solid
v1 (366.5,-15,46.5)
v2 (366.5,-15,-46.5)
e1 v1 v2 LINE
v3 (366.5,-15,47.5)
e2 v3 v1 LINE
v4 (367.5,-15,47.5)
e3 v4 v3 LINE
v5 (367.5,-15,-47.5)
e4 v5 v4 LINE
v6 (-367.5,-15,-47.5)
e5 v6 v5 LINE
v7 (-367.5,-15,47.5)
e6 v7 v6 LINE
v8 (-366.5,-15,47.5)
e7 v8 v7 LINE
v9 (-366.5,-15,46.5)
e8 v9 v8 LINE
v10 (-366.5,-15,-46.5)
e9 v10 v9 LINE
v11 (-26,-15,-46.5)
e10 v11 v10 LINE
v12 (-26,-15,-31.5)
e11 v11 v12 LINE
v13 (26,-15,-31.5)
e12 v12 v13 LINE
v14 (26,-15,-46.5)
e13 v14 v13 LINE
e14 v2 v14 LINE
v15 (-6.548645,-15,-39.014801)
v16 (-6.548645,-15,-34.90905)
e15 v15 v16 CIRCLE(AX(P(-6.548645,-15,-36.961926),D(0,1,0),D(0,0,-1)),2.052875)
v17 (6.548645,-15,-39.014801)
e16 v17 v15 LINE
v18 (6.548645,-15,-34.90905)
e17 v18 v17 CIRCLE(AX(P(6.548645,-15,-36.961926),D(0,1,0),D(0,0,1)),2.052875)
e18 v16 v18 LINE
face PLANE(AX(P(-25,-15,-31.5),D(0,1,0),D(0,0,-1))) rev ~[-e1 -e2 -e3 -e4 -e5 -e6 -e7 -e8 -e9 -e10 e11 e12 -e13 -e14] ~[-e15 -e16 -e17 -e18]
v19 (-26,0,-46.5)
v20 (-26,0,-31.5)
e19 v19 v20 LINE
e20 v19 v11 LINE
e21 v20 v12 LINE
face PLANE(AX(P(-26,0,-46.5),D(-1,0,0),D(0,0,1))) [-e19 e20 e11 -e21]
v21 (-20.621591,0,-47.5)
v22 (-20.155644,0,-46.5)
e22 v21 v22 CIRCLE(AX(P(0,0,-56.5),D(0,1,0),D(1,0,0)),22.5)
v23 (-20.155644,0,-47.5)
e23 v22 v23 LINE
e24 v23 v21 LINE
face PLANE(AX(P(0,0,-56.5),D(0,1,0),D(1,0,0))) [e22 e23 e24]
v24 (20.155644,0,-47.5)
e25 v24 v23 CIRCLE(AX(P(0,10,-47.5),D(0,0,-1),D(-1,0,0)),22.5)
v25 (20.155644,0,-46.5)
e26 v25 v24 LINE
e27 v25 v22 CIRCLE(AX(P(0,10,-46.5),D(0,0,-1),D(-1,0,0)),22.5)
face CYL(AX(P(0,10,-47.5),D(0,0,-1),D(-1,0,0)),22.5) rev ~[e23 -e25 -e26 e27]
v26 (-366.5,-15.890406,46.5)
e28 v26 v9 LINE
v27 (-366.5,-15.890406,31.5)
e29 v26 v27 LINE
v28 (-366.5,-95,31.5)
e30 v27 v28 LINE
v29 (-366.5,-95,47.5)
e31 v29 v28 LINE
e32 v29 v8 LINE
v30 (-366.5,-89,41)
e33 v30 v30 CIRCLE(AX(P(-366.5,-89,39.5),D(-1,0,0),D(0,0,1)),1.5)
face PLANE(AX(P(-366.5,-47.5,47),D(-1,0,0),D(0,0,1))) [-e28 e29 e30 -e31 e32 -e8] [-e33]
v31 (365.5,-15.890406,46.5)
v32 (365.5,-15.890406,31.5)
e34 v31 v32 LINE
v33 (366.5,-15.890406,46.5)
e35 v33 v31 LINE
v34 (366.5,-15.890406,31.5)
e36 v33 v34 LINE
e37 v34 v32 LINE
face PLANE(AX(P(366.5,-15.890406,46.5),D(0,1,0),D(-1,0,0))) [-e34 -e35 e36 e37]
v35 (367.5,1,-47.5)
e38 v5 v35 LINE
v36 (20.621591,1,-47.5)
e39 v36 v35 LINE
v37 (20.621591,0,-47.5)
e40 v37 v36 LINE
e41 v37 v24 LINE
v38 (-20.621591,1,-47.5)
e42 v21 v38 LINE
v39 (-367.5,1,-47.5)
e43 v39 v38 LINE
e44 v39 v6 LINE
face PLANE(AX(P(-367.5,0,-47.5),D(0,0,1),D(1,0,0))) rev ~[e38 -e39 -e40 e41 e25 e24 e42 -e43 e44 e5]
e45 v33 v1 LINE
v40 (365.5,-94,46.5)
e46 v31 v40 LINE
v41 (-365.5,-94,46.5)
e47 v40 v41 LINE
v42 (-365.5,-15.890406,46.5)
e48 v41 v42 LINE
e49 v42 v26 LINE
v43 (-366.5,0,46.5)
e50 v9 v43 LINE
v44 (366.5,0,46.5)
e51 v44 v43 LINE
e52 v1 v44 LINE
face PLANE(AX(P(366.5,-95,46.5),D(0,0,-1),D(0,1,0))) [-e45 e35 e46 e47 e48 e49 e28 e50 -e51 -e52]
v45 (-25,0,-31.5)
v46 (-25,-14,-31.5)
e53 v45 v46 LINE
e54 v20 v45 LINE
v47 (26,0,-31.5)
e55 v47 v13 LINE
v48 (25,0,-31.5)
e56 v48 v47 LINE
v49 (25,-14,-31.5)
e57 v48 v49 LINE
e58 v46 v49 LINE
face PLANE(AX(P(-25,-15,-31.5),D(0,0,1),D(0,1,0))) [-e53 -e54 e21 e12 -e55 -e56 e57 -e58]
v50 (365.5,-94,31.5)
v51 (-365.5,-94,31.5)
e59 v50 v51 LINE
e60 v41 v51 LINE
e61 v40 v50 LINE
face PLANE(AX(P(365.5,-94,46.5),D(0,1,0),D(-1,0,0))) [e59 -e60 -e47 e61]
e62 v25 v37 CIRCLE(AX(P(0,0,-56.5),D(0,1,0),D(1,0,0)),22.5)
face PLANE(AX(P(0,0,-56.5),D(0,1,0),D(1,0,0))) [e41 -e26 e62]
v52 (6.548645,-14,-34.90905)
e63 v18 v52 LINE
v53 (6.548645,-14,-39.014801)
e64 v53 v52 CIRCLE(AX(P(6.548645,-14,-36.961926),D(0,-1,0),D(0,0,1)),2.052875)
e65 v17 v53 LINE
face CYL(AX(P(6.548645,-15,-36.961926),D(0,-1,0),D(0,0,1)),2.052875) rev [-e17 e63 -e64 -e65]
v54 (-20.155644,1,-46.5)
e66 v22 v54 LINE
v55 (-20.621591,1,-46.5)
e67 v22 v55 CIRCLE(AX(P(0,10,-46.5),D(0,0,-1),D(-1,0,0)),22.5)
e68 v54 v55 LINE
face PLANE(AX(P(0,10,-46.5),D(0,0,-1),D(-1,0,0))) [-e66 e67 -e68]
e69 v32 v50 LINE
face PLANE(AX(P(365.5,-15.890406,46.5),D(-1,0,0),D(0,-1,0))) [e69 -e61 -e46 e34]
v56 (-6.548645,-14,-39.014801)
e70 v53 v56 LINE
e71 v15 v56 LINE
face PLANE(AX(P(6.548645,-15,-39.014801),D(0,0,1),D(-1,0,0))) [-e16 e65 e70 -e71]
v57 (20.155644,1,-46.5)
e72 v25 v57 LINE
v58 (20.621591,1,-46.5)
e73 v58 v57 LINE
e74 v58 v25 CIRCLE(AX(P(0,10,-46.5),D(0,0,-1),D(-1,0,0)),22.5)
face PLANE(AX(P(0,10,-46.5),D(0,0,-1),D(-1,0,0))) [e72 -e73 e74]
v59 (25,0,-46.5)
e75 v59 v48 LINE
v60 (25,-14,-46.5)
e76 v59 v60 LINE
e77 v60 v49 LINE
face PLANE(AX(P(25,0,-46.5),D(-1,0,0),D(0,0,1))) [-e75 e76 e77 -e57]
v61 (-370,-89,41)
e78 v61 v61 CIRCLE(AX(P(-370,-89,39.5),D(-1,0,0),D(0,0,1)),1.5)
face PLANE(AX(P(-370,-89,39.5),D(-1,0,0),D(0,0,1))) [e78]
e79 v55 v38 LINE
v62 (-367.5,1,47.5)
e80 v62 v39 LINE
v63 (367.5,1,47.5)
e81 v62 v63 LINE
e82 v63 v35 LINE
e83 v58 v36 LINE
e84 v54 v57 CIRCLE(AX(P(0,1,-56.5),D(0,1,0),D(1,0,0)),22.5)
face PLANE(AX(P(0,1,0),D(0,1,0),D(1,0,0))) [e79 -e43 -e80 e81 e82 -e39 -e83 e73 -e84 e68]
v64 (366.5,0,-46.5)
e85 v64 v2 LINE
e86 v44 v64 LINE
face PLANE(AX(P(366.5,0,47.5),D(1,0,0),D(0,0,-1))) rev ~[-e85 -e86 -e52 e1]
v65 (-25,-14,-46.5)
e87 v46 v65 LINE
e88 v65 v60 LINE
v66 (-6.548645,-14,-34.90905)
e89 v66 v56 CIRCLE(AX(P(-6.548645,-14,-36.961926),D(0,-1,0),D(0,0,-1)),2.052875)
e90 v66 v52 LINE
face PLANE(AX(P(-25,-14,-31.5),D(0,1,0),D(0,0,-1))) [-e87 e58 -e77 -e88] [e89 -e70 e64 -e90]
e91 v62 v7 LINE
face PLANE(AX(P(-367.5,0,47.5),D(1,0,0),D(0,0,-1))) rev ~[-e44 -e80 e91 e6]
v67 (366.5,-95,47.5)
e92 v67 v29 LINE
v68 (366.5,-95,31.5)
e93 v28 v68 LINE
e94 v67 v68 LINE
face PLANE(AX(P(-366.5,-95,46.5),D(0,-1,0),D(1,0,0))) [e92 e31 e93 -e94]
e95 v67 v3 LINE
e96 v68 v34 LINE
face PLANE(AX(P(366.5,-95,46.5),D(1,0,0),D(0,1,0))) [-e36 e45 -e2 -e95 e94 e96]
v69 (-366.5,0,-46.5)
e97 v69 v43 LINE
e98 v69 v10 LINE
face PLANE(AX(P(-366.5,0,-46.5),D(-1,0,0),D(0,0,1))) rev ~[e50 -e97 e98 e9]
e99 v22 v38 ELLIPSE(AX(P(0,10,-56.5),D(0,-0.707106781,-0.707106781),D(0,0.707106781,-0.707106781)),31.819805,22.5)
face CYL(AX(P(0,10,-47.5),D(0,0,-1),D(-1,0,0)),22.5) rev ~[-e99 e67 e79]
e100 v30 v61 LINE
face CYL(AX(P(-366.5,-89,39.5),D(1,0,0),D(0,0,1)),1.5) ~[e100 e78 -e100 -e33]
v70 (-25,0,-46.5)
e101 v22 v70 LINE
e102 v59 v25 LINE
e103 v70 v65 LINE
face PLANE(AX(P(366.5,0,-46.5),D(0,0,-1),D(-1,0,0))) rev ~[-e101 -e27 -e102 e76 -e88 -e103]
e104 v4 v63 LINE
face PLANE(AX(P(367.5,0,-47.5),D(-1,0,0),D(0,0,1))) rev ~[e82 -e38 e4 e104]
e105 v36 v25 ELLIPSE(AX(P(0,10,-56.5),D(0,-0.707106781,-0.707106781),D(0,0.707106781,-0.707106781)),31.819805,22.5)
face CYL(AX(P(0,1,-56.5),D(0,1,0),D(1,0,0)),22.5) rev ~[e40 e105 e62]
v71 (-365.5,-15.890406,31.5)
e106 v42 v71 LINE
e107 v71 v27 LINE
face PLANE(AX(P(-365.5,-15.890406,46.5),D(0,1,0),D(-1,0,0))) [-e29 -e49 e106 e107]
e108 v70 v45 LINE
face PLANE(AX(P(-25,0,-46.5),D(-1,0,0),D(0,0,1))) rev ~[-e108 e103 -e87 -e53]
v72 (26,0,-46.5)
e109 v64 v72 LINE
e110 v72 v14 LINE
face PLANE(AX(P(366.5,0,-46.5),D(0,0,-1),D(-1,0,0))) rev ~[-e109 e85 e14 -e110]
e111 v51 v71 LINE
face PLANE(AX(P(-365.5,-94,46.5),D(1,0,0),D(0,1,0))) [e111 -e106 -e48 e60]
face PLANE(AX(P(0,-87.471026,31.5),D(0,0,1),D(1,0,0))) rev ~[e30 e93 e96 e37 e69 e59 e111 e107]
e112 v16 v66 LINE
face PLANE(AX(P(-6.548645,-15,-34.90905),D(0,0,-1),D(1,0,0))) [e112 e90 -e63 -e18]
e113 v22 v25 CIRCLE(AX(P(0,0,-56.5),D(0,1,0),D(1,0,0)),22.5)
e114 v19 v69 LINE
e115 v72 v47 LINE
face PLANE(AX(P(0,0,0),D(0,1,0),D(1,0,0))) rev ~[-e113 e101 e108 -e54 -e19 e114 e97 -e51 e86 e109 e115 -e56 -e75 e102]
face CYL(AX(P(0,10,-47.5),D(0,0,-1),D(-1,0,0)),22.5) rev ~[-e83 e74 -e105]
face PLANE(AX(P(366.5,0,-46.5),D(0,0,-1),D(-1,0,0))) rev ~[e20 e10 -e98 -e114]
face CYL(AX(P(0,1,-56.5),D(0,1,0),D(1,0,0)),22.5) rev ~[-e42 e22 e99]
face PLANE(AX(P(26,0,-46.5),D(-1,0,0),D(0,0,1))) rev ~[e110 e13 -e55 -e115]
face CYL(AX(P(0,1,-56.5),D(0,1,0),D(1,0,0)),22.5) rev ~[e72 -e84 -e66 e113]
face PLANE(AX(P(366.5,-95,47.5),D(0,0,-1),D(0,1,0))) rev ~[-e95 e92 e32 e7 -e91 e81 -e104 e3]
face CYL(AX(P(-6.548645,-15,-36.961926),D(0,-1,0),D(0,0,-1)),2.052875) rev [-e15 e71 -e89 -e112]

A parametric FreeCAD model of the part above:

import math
import FreeCAD as App
import Part
import Sketcher
from FreeCAD import Vector
Q = App.Units.Quantity


def add_polygon(sketch, points):
    """Adds a closed chain of lines whose ends are joined by coincident constraints."""
    first, n = sketch.GeometryCount, len(points)
    for a, b in zip(points, points[1:] + points[:1]):
        sketch.addGeometry(Part.LineSegment(App.Vector(*a, 0), App.Vector(*b, 0)), False)
    for i in range(n):
        sketch.addConstraint(Sketcher.Constraint("Coincident", first + i, 2, first + (i + 1) % n, 1))

doc = App.newDocument("Part")
body = doc.addObject("PartDesign::Body", "Body")

# Sketch on XZ plane
sketch1 = body.newObject("Sketcher::SketchObject", "Sketch")
sketch1.AttachmentSupport = (doc.getObject("XZ_Plane"), [""])
sketch1.MapMode = "FlatFace"
add_polygon(sketch1, [(-368, -48), (-368, 48), (368, 48), (368, -48)])  # lines 0-3
sketch1.addConstraint([
    Sketcher.Constraint("Vertical", 0),
    Sketcher.Constraint("Horizontal", 1),
    Sketcher.Constraint("Vertical", 2),
    Sketcher.Constraint("Horizontal", 3),
    Sketcher.Constraint("Symmetric", 0, 2, 2, 2, -1, 1),
    Sketcher.Constraint("DistanceX", 1, 1, 1, 2, Q("735 mm")),
    Sketcher.Constraint("DistanceY", 0, 1, 0, 2, Q("95 mm")),
])
pad1 = body.newObject("PartDesign::Pad", "Pad")
pad1.Profile = sketch1
pad1.Length = 1
pad1.Reversed = True

# Sketch on XZ plane
sketch2 = body.newObject("Sketcher::SketchObject", "Sketch001")
sketch2.AttachmentSupport = (doc.getObject("XZ_Plane"), [""])
sketch2.MapMode = "FlatFace"
add_polygon(sketch2, [(366.5, 47.5), (366.5, -46.5), (-366.5, -46.5), (-366.5, 47.5), (-367.5, 47.5), (-367.5, -47.5), (367.5, -47.5), (367.5, 47.5)])  # lines 0-7
sketch2.addConstraint([
    Sketcher.Constraint("Vertical", 0),
    Sketcher.Constraint("Horizontal", 1),
    Sketcher.Constraint("Vertical", 2),
    Sketcher.Constraint("Horizontal", 3),
    Sketcher.Constraint("Vertical", 4),
    Sketcher.Constraint("Horizontal", 5),
    Sketcher.Constraint("Vertical", 6),
    Sketcher.Constraint("Horizontal", 7),
    Sketcher.Constraint("Symmetric", 3, 2, 5, 2, -1, 1),
    Sketcher.Constraint("Symmetric", 2, 2, 7, 2, -2),
    Sketcher.Constraint("DistanceX", 1, 2, 1, 1, Q("733 mm")),
    Sketcher.Constraint("DistanceX", 3, 2, 3, 1, Q("1 mm")),
    Sketcher.Constraint("DistanceY", 0, 2, 0, 1, Q("94 mm")),
    Sketcher.Constraint("DistanceY", 4, 2, 4, 1, Q("95 mm")),
])
pad2 = body.newObject("PartDesign::Pad", "Pad001")
pad2.Profile = sketch2
pad2.Length = 15

# Sketch on XY plane
sketch3 = body.newObject("Sketcher::SketchObject", "Sketch002")
sketch3.AttachmentSupport = (doc.getObject("XY_Plane"), [""])
sketch3.MapMode = "FlatFace"
sketch3.AttachmentOffset = App.Placement(Vector(0, 0, -47.5), App.Rotation())
sketch3.addGeometry(Part.Circle(Vector(0, 10, 0), Vector(0, 0, 1), 22), False)
sketch3.addConstraint([
    Sketcher.Constraint("PointOnObject", 0, 3, -2),
    Sketcher.Constraint("Diameter", 0, Q("45 mm")),
    Sketcher.Constraint("DistanceY", -1, 1, 0, 3, Q("10 mm")),
])
pocket1 = body.newObject("PartDesign::Pocket", "Pocket")
pocket1.Profile = sketch3
pocket1.Length = 1
pocket1.Reversed = True

# Sketch on XZ plane
sketch4 = body.newObject("Sketcher::SketchObject", "Sketch003")
sketch4.AttachmentSupport = (doc.getObject("XZ_Plane"), [""])
sketch4.MapMode = "FlatFace"
sketch4.AttachmentOffset = App.Placement(Vector(0, 0, -1), App.Rotation())
sketch4.addGeometry(Part.Circle(Vector(0, -56, 0), Vector(0, 0, 1), 22), False)
sketch4.addConstraint([
    Sketcher.Constraint("PointOnObject", 0, 3, -2),
    Sketcher.Constraint("Diameter", 0, Q("45 mm")),
    Sketcher.Constraint("DistanceY", 0, 3, -1, 1, Q("56.5 mm")),
])
pocket2 = body.newObject("PartDesign::Pocket", "Pocket001")
pocket2.Profile = sketch4
pocket2.Length = 1
pocket2.Reversed = True

# Sketch on XZ plane
sketch5 = body.newObject("Sketcher::SketchObject", "Sketch004")
sketch5.AttachmentSupport = (doc.getObject("XZ_Plane"), [""])
sketch5.MapMode = "FlatFace"
add_polygon(sketch5, [(-26, -31.5), (-26, -46.5), (-25, -46.5), (-25, -31.5)])  # lines 0-3
add_polygon(sketch5, [(25, -31.5), (25, -46.5), (26, -46.5), (26, -31.5)])  # lines 4-7
sketch5.addConstraint([
    Sketcher.Constraint("Vertical", 0),
    Sketcher.Constraint("Horizontal", 1),
    Sketcher.Constraint("Vertical", 2),
    Sketcher.Constraint("Horizontal", 3),
    Sketcher.Constraint("Vertical", 4),
    Sketcher.Constraint("Horizontal", 5),
    Sketcher.Constraint("Vertical", 6),
    Sketcher.Constraint("Horizontal", 7),
    Sketcher.Constraint("Symmetric", 1, 2, 4, 2, -2),
    Sketcher.Constraint("Symmetric", 3, 2, 6, 2, -2),
    Sketcher.Constraint("DistanceX", 1, 1, 1, 2, Q("1 mm")),
    Sketcher.Constraint("DistanceY", 0, 2, 0, 1, Q("15 mm")),
    Sketcher.Constraint("DistanceX", 0, 2, -1, 1, Q("26 mm")),
    Sketcher.Constraint("DistanceY", 0, 2, -1, 1, Q("46.5 mm")),
])
pad3 = body.newObject("PartDesign::Pad", "Pad002")
pad3.Profile = sketch5
pad3.Length = 15

# Sketch on YZ plane
sketch6 = body.newObject("Sketcher::SketchObject", "Sketch005")
sketch6.AttachmentSupport = (doc.getObject("YZ_Plane"), [""])
sketch6.MapMode = "FlatFace"
sketch6.AttachmentOffset = App.Placement(Vector(0, 0, -25), App.Rotation())
add_polygon(sketch6, [(-14, -31.5), (-15, -31.5), (-15, -46.5), (-14, -46.5)])  # lines 0-3
sketch6.addConstraint([
    Sketcher.Constraint("Horizontal", 0),
    Sketcher.Constraint("Vertical", 1),
    Sketcher.Constraint("Horizontal", 2),
    Sketcher.Constraint("Vertical", 3),
    Sketcher.Constraint("DistanceX", 0, 2, 0, 1, Q("1 mm")),
    Sketcher.Constraint("DistanceY", 1, 2, 1, 1, Q("15 mm")),
    Sketcher.Constraint("DistanceX", 0, 2, -1, 1, Q("15 mm")),
    Sketcher.Constraint("DistanceY", 0, 2, -1, 1, Q("31.5 mm")),
])
pad4 = body.newObject("PartDesign::Pad", "Pad003")
pad4.Profile = sketch6
pad4.Type = "UpToFirst"

# Sketch on XZ plane
sketch7 = body.newObject("Sketcher::SketchObject", "Sketch006")
sketch7.AttachmentSupport = (doc.getObject("XZ_Plane"), [""])
sketch7.MapMode = "FlatFace"
sketch7.AttachmentOffset = App.Placement(Vector(0, 0, 15), App.Rotation())
sketch7.addGeometry([
    Part.LineSegment(Vector(6.5, -34.9, 0), Vector(-6.5, -34.9, 0)),
    Part.ArcOfCircle(Part.Circle(Vector(-6.5, -37, 0), Vector(0, 0, 1), 2.1), math.radians(90), math.radians(270)),
    Part.LineSegment(Vector(-6.5, -39, 0), Vector(6.5, -39, 0)),
    Part.ArcOfCircle(Part.Circle(Vector(6.5, -37, 0), Vector(0, 0, 1), 2.1), math.radians(-90), math.radians(90)),
], False)
sketch7.addConstraint([
    Sketcher.Constraint("Tangent", 0, 2, 1, 1),
    Sketcher.Constraint("Tangent", 1, 2, 2, 1),
    Sketcher.Constraint("Tangent", 2, 2, 3, 1),
    Sketcher.Constraint("Tangent", 3, 2, 0, 1),
    Sketcher.Constraint("Horizontal", 0),
    Sketcher.Constraint("Horizontal", 2),
    Sketcher.Constraint("Radius", 1, Q("2.052875 mm")),
    Sketcher.Constraint("DistanceX", 0, 2, 0, 1, Q("13.09729 mm")),
    Sketcher.Constraint("DistanceY", 1, 2, -1, 1, Q("39.014801 mm")),
    Sketcher.Constraint("DistanceX", 1, 3, -1, 1, Q("6.548645 mm")),
])
pocket3 = body.newObject("PartDesign::Pocket", "Pocket002")
pocket3.Profile = sketch7
pocket3.Type = "UpToFirst"

# Sketch on YZ plane
sketch8 = body.newObject("Sketcher::SketchObject", "Sketch007")
sketch8.AttachmentSupport = (doc.getObject("YZ_Plane"), [""])
sketch8.MapMode = "FlatFace"
sketch8.AttachmentOffset = App.Placement(Vector(0, 0, 366.5), App.Rotation())
add_polygon(sketch8, [(0, 46.5), (-95, 46.5), (-95, 47.5), (0, 47.5)])  # lines 0-3
sketch8.addConstraint([
    Sketcher.Constraint("Horizontal", 0),
    Sketcher.Constraint("Vertical", 1),
    Sketcher.Constraint("Horizontal", 2),
    Sketcher.Constraint("Vertical", 3),
    Sketcher.Constraint("PointOnObject", 2, 2, -2),
    Sketcher.Constraint("DistanceX", 0, 2, 0, 1, Q("95 mm")),
    Sketcher.Constraint("DistanceY", 1, 1, 1, 2, Q("1 mm")),
    Sketcher.Constraint("DistanceY", -1, 1, 0, 2, Q("46.5 mm")),
])
pad5 = body.newObject("PartDesign::Pad", "Pad004")
pad5.Profile = sketch8
pad5.Length = 733
pad5.Reversed = True

# Sketch on XY plane
sketch9 = body.newObject("Sketcher::SketchObject", "Sketch008")
sketch9.AttachmentSupport = (doc.getObject("XY_Plane"), [""])
sketch9.MapMode = "FlatFace"
sketch9.AttachmentOffset = App.Placement(Vector(0, 0, 46.5), App.Rotation())
add_polygon(sketch9, [(365.5, -15.9), (366.5, -15.9), (366.5, -95), (-366.5, -95), (-366.5, -15.9), (-365.5, -15.9), (-365.5, -94), (365.5, -94)])  # lines 0-7
sketch9.addConstraint([
    Sketcher.Constraint("Horizontal", 0),
    Sketcher.Constraint("Vertical", 1),
    Sketcher.Constraint("Horizontal", 2),
    Sketcher.Constraint("Vertical", 3),
    Sketcher.Constraint("Horizontal", 4),
    Sketcher.Constraint("Vertical", 5),
    Sketcher.Constraint("Horizontal", 6),
    Sketcher.Constraint("Vertical", 7),
    Sketcher.Constraint("Symmetric", 0, 2, 3, 2, -2),
    Sketcher.Constraint("Equal", 0, 4),
    Sketcher.Constraint("DistanceX", 0, 1, 0, 2, Q("1 mm")),
    Sketcher.Constraint("DistanceX", 2, 2, 2, 1, Q("733 mm")),
    Sketcher.Constraint("DistanceY", 1, 2, -1, 1, Q("95 mm")),
    Sketcher.Constraint("DistanceY", 5, 2, -1, 1, Q("94 mm")),
    Sketcher.Constraint("DistanceY", 1, 2, 1, 1, Q("79.109594 mm")),
])
pad6 = body.newObject("PartDesign::Pad", "Pad005")
pad6.Profile = sketch9
pad6.Length = 15
pad6.Reversed = True

# Sketch on YZ plane
sketch10 = body.newObject("Sketcher::SketchObject", "Sketch009")
sketch10.AttachmentSupport = (doc.getObject("YZ_Plane"), [""])
sketch10.MapMode = "FlatFace"
sketch10.AttachmentOffset = App.Placement(Vector(0, 0, -366.5), App.Rotation())
sketch10.addGeometry(Part.Circle(Vector(-89, 39.5, 0), Vector(0, 0, 1), 1.5), False)
sketch10.addConstraint([
    Sketcher.Constraint("Diameter", 0, Q("3 mm")),
    Sketcher.Constraint("DistanceX", 0, 3, -1, 1, Q("89 mm")),
    Sketcher.Constraint("DistanceY", -1, 1, 0, 3, Q("39.5 mm")),
])
pad7 = body.newObject("PartDesign::Pad", "Pad006")
pad7.Profile = sketch10
pad7.Length = 3.5
pad7.Reversed = True

doc.recompute()
